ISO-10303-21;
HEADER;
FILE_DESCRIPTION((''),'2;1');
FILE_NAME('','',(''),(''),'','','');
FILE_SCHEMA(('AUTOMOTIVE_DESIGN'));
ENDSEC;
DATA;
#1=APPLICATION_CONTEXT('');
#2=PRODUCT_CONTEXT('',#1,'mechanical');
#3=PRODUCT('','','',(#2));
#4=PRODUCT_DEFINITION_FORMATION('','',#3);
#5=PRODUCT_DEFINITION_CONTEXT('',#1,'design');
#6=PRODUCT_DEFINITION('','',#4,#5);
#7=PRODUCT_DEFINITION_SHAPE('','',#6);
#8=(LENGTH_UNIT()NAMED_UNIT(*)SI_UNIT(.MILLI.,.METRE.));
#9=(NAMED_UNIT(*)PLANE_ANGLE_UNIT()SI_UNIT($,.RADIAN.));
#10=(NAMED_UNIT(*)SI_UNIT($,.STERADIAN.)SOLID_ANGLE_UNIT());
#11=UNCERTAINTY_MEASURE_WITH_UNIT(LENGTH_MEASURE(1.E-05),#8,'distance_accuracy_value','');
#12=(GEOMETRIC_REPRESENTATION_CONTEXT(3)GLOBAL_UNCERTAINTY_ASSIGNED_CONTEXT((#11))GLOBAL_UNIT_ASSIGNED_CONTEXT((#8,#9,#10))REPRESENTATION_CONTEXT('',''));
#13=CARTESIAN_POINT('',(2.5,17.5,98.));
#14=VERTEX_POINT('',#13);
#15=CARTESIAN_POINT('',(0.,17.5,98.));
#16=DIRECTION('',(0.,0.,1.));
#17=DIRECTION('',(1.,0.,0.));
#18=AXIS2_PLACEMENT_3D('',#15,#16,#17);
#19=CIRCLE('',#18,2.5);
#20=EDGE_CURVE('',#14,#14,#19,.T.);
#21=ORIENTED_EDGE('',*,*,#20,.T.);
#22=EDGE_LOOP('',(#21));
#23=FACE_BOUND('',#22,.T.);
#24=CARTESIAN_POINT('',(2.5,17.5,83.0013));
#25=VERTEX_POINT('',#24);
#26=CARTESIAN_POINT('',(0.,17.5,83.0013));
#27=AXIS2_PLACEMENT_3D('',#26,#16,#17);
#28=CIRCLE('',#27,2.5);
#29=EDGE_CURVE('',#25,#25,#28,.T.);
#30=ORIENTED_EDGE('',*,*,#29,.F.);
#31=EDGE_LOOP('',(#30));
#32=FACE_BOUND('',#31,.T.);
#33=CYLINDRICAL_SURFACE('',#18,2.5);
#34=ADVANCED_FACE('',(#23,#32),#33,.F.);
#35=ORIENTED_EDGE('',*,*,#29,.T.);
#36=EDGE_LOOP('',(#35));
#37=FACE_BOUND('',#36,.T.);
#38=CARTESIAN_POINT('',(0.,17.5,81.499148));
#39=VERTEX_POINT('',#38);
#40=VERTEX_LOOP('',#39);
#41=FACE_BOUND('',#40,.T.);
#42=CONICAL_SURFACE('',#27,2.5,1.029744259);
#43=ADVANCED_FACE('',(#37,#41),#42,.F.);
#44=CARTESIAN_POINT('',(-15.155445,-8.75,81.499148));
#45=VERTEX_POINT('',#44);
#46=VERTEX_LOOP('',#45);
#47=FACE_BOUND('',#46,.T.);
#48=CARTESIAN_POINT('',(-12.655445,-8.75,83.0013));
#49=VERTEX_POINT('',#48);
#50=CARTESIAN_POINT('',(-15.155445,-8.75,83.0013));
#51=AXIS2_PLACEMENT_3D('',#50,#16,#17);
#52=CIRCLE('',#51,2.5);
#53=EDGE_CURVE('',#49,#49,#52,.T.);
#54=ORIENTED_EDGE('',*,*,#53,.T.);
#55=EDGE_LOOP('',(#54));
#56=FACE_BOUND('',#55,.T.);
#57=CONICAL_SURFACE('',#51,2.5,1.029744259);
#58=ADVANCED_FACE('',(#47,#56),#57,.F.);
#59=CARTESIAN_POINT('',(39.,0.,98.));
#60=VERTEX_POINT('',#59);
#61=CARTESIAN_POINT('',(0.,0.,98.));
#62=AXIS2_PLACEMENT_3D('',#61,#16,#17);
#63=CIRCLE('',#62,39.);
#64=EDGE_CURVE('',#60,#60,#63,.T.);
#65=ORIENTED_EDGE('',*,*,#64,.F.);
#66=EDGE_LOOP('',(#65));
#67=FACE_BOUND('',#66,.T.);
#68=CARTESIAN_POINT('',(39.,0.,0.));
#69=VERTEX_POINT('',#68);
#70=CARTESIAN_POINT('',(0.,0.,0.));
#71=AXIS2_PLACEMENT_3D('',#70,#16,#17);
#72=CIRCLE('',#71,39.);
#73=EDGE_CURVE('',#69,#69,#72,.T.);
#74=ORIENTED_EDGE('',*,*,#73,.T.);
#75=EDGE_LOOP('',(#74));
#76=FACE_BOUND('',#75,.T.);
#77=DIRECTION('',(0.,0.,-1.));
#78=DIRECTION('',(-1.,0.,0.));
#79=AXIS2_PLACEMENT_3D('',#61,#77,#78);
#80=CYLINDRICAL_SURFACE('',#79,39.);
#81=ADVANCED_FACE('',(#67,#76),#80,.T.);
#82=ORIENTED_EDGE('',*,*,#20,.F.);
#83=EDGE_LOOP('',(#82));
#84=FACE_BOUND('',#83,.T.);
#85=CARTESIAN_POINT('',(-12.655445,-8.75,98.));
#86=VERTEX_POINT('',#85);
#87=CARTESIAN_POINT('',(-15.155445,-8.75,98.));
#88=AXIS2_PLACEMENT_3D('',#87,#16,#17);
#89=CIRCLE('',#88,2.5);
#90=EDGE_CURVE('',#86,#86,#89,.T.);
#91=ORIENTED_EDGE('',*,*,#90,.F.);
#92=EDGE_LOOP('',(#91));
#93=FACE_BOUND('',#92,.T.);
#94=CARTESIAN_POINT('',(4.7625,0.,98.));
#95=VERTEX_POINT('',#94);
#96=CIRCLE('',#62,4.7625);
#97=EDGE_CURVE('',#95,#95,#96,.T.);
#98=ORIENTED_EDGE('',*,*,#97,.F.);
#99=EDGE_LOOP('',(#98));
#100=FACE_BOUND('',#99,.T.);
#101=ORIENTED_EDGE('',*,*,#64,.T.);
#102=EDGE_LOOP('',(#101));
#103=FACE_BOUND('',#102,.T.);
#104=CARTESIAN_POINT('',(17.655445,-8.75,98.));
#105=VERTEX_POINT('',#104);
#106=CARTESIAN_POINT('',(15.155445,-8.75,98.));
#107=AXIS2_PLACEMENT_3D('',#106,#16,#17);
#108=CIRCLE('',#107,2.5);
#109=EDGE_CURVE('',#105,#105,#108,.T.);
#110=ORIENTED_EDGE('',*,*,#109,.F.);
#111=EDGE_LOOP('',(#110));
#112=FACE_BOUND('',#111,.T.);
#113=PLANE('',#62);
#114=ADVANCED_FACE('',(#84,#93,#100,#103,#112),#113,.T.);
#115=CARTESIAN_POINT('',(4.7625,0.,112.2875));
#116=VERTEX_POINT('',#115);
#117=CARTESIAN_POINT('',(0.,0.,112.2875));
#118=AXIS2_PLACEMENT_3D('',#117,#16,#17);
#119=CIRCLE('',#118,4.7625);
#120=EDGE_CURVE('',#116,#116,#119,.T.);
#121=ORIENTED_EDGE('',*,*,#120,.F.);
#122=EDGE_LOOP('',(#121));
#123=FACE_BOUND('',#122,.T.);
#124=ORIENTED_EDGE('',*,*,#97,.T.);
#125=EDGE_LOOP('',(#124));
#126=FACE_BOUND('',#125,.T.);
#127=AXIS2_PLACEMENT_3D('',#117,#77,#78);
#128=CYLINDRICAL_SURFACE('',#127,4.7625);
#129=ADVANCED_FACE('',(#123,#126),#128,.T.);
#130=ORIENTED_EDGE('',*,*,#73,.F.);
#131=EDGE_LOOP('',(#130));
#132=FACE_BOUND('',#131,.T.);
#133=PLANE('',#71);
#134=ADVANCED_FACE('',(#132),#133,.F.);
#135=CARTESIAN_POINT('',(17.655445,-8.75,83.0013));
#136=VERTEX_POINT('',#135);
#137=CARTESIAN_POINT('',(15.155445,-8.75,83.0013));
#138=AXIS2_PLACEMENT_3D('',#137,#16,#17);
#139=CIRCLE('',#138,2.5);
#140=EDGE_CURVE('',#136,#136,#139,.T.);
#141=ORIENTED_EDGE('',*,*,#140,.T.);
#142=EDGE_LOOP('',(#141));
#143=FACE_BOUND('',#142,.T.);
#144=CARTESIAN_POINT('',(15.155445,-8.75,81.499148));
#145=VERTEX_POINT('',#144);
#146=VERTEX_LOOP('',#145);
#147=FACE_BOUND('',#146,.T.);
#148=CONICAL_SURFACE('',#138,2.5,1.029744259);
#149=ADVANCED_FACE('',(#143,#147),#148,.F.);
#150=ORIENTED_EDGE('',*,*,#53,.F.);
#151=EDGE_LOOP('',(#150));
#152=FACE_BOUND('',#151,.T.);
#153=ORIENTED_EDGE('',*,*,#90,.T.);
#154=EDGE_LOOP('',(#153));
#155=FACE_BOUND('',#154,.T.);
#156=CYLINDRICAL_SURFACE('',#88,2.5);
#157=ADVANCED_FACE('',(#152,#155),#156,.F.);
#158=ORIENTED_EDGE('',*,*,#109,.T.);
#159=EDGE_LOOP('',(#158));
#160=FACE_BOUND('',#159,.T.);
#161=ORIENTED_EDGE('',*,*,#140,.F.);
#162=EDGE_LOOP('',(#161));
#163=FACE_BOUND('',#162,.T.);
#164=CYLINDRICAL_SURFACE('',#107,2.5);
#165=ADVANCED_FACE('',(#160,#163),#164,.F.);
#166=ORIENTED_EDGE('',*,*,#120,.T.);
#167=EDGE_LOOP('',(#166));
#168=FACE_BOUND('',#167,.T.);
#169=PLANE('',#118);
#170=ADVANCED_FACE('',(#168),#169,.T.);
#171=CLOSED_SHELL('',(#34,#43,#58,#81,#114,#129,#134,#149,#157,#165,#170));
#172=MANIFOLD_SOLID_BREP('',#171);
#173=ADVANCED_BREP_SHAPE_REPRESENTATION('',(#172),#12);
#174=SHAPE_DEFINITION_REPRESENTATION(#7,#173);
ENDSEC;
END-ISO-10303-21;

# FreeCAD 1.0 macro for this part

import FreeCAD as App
import Part
import Sketcher

doc = App.newDocument("Part")
body = doc.addObject("PartDesign::Body", "Body")

sketch1 = body.newObject("Sketcher::SketchObject", "Sketch")
sketch1.AttachmentSupport = (doc.getObject("XY_Plane"), [""])
sketch1.MapMode = "FlatFace"
sketch1.addGeometry(Part.Circle(App.Vector(0, 0, 0), App.Vector(0, 0, 1), 39), False)
sketch1.addConstraint([
    Sketcher.Constraint("Coincident", 0, 3, -1, 1),
    Sketcher.Constraint("Diameter", 0, 78.0),
])
pad1 = body.newObject("PartDesign::Pad", "Pad")
pad1.Profile = sketch1
pad1.Length = 98

sketch2 = body.newObject("Sketcher::SketchObject", "Sketch001")
sketch2.AttachmentSupport = (doc.getObject("XY_Plane"), [""])
sketch2.MapMode = "FlatFace"
sketch2.AttachmentOffset = App.Placement(App.Vector(0, 0, 98), App.Rotation())
sketch2.addGeometry(Part.Circle(App.Vector(0, 0, 0), App.Vector(0, 0, 1), 4.7625), False)
sketch2.addConstraint([
    Sketcher.Constraint("Coincident", 0, 3, -1, 1),
    Sketcher.Constraint("Diameter", 0, 9.525),
])
pad2 = body.newObject("PartDesign::Pad", "Pad001")
pad2.Profile = sketch2
pad2.Length = 14.2875

sketch3 = body.newObject("Sketcher::SketchObject", "Sketch002")
sketch3.AttachmentSupport = (doc.getObject("XY_Plane"), [""])
sketch3.MapMode = "FlatFace"
sketch3.AttachmentOffset = App.Placement(App.Vector(0, 0, 98), App.Rotation())
sketch3.addGeometry([
    Part.Circle(App.Vector(0, 17.5, 0), App.Vector(0, 0, 1), 2.5),
    Part.Circle(App.Vector(15.155445, -8.75, 0), App.Vector(0, 0, 1), 2.5),
    Part.Circle(App.Vector(-15.155445, -8.75, 0), App.Vector(0, 0, 1), 2.5),
], False)
sketch3.addConstraint([
    Sketcher.Constraint("Equal", 0, 1),
    Sketcher.Constraint("Equal", 1, 2),
    Sketcher.Constraint("Symmetric", 1, 3, 2, 3, -2),
    Sketcher.Constraint("PointOnObject", 0, 3, -2),
    Sketcher.Constraint("Diameter", 0, 5.0),
    Sketcher.Constraint("DistanceY", -1, 1, 0, 3, 17.5),
    Sketcher.Constraint("DistanceY", 1, 3, -1, 1, 8.75),
    Sketcher.Constraint("DistanceX", 2, 3, 1, 3, 30.310889),
])
doc.recompute()
hole = body.newObject("PartDesign::Hole", "Hole")
hole.Profile = sketch3
hole.ThreadType = "None"
hole.Diameter = 5
hole.DepthType = "Dimension"
hole.Depth = 14.9987
hole.DrillPoint = "Angled"
hole.DrillPointAngle = 118

doc.recompute()
